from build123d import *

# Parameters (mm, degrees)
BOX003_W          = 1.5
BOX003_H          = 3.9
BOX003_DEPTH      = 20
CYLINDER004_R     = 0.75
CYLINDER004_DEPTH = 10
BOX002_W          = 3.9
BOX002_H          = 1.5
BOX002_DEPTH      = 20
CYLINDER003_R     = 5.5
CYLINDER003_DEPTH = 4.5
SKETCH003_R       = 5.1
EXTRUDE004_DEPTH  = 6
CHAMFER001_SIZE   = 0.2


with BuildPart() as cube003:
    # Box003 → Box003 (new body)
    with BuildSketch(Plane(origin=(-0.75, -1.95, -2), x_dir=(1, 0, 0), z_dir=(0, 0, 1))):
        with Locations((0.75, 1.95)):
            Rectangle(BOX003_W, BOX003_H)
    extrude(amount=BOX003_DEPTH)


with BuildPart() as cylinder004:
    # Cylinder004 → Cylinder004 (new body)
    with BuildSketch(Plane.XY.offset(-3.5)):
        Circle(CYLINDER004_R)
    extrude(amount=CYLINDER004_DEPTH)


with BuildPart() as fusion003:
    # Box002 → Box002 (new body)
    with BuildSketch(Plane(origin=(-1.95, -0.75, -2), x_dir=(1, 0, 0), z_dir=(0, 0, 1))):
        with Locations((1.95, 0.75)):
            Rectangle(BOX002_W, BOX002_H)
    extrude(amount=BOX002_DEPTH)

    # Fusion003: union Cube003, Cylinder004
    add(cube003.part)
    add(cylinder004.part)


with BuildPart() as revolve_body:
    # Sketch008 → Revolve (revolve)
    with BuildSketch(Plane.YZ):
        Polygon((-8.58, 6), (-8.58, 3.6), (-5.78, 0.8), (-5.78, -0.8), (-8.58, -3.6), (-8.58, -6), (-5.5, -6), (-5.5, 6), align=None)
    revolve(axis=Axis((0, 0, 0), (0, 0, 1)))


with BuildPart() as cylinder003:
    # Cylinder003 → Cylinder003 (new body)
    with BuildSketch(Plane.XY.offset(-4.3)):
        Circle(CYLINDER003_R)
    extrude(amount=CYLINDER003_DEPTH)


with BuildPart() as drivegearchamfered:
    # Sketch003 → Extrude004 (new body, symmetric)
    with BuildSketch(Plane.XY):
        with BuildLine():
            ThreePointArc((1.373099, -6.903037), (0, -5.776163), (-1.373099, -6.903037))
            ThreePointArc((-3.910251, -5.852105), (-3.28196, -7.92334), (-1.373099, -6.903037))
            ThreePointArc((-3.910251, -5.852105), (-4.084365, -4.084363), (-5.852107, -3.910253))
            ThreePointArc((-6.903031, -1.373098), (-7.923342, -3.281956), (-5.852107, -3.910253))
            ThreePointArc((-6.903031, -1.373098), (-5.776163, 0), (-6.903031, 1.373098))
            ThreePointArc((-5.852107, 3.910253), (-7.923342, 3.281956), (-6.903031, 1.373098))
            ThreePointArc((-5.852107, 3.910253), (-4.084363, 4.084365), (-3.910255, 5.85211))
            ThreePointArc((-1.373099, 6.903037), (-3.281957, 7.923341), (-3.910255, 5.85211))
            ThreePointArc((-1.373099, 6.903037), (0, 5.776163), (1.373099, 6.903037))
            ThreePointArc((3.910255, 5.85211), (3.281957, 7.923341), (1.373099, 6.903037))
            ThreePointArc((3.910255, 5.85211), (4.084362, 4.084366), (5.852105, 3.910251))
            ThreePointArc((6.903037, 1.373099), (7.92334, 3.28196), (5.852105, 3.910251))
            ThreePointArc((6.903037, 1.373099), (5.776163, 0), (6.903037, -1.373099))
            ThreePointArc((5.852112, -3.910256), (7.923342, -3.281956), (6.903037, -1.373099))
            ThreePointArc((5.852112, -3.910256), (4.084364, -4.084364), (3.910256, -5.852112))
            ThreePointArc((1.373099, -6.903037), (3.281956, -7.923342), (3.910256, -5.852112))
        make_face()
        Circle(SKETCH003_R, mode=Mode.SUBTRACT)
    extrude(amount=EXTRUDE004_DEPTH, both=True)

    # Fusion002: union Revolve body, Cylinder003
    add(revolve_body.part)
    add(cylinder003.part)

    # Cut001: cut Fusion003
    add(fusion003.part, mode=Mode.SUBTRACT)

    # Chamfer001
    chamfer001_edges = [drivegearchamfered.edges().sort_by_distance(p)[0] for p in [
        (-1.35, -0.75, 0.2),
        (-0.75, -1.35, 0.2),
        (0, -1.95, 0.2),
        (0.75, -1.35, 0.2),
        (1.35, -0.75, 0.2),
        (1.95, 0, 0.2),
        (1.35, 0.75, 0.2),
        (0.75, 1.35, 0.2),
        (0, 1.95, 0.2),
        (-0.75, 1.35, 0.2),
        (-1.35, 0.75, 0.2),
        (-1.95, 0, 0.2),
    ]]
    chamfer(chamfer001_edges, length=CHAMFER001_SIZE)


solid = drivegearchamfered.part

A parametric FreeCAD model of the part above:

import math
import FreeCAD as App
import Part
import Sketcher
from FreeCAD import Vector


def edges_at(feature, points):
    """Names of the edges that pass closest to the given points."""
    edges = feature.Shape.Edges
    near = lambda p: min(range(len(edges)), key=lambda i: edges[i].distToShape(Part.Vertex(*p))[0])
    return sorted({f"Edge{near(p) + 1}" for p in points})

doc = App.newDocument("Part")
body = doc.addObject("PartDesign::Body", "Body")

# Sketch on XY plane
sketch1 = doc.addObject("Sketcher::SketchObject", "Sketch")
body.addObject(sketch1)
sketch1.AttachmentSupport = (doc.XY_Plane, [""])
sketch1.MapMode = "FlatFace"
sketch1.AttachmentOffset = App.Placement(Vector(0, 0, -2), App.Rotation())
sketch1.addGeometry([
    Part.LineSegment(Vector(-0.8, 1.9, 0), Vector(-0.8, -1.9, 0)),
    Part.LineSegment(Vector(-0.8, -1.9, 0), Vector(0.8, -1.9, 0)),
    Part.LineSegment(Vector(0.8, -1.9, 0), Vector(0.8, 1.9, 0)),
    Part.LineSegment(Vector(0.8, 1.9, 0), Vector(-0.8, 1.9, 0)),
], False)
sketch1.addConstraint([
    Sketcher.Constraint("Coincident", 0, 2, 1, 1),
    Sketcher.Constraint("Coincident", 1, 2, 2, 1),
    Sketcher.Constraint("Coincident", 2, 2, 3, 1),
    Sketcher.Constraint("Coincident", 3, 2, 0, 1),
    Sketcher.Constraint("Vertical", 0),
    Sketcher.Constraint("Horizontal", 1),
    Sketcher.Constraint("Vertical", 2),
    Sketcher.Constraint("Horizontal", 3),
    Sketcher.Constraint("Symmetric", 0, 2, 2, 2, -1, 1),
    Sketcher.Constraint("DistanceX", 1, 1, 1, 2, 1.5),
    Sketcher.Constraint("DistanceY", 0, 2, 0, 1, 3.9),
])
pad1 = doc.addObject("PartDesign::Pad", "Pad")
body.addObject(pad1)
pad1.Profile = sketch1
pad1.Length = 20
body2 = doc.addObject("PartDesign::Body", "Body001")

# Sketch on XY plane
sketch2 = doc.addObject("Sketcher::SketchObject", "Sketch001")
body2.addObject(sketch2)
sketch2.AttachmentSupport = (doc.getObject("XY_Plane001"), [""])
sketch2.MapMode = "FlatFace"
sketch2.AttachmentOffset = App.Placement(Vector(0, 0, -3.5), App.Rotation())
sketch2.addGeometry(Part.Circle(Vector(0, 0, 0), Vector(0, 0, 1), 0.8), False)
sketch2.addConstraint([
    Sketcher.Constraint("Coincident", 0, 3, -1, 1),
    Sketcher.Constraint("Diameter", 0, 1.5),
])
pad2 = doc.addObject("PartDesign::Pad", "Pad001")
body2.addObject(pad2)
pad2.Profile = sketch2
pad2.Length = 10
body3 = doc.addObject("PartDesign::Body", "Body002")

# Sketch on XY plane
sketch3 = doc.addObject("Sketcher::SketchObject", "Sketch002")
body3.addObject(sketch3)
sketch3.AttachmentSupport = (doc.getObject("XY_Plane002"), [""])
sketch3.MapMode = "FlatFace"
sketch3.AttachmentOffset = App.Placement(Vector(0, 0, -2), App.Rotation())
sketch3.addGeometry([
    Part.LineSegment(Vector(-1.9, 0.8, 0), Vector(-1.9, -0.8, 0)),
    Part.LineSegment(Vector(-1.9, -0.8, 0), Vector(1.9, -0.8, 0)),
    Part.LineSegment(Vector(1.9, -0.8, 0), Vector(1.9, 0.8, 0)),
    Part.LineSegment(Vector(1.9, 0.8, 0), Vector(-1.9, 0.8, 0)),
], False)
sketch3.addConstraint([
    Sketcher.Constraint("Coincident", 0, 2, 1, 1),
    Sketcher.Constraint("Coincident", 1, 2, 2, 1),
    Sketcher.Constraint("Coincident", 2, 2, 3, 1),
    Sketcher.Constraint("Coincident", 3, 2, 0, 1),
    Sketcher.Constraint("Vertical", 0),
    Sketcher.Constraint("Horizontal", 1),
    Sketcher.Constraint("Vertical", 2),
    Sketcher.Constraint("Horizontal", 3),
    Sketcher.Constraint("Symmetric", 0, 2, 2, 2, -1, 1),
    Sketcher.Constraint("DistanceX", 1, 1, 1, 2, 3.9),
    Sketcher.Constraint("DistanceY", 0, 2, 0, 1, 1.5),
])
pad3 = doc.addObject("PartDesign::Pad", "Pad002")
body3.addObject(pad3)
pad3.Profile = sketch3
pad3.Length = 20
doc.recompute()

boolean = doc.addObject("PartDesign::Boolean", "Boolean")
body3.addObject(boolean)
boolean.Type = "Fuse"
boolean.addObjects([body])
doc.recompute()

boolean2 = doc.addObject("PartDesign::Boolean", "Boolean001")
body3.addObject(boolean2)
boolean2.Type = "Fuse"
boolean2.addObjects([body2])
body4 = doc.addObject("PartDesign::Body", "Body003")

# Sketch on YZ plane
sketch4 = doc.addObject("Sketcher::SketchObject", "Sketch003")
body4.addObject(sketch4)
sketch4.AttachmentSupport = (doc.getObject("YZ_Plane003"), [""])
sketch4.MapMode = "FlatFace"
sketch4.addGeometry([
    Part.LineSegment(Vector(-8.6, 6, 0), Vector(-8.6, 3.6, 0)),  # 0
    Part.LineSegment(Vector(-8.6, 3.6, 0), Vector(-5.8, 0.8, 0)),  # 1
    Part.LineSegment(Vector(-5.8, 0.8, 0), Vector(-5.8, -0.8, 0)),  # 2
    Part.LineSegment(Vector(-5.8, -0.8, 0), Vector(-8.6, -3.6, 0)),  # 3
    Part.LineSegment(Vector(-8.6, -3.6, 0), Vector(-8.6, -6, 0)),  # 4
    Part.LineSegment(Vector(-8.6, -6, 0), Vector(-5.5, -6, 0)),  # 5
    Part.LineSegment(Vector(-5.5, -6, 0), Vector(-5.5, 6, 0)),  # 6
    Part.LineSegment(Vector(-5.5, 6, 0), Vector(-8.6, 6, 0)),  # 7
], False)
sketch4.addConstraint([
    Sketcher.Constraint("Coincident", 0, 2, 1, 1),
    Sketcher.Constraint("Coincident", 1, 2, 2, 1),
    Sketcher.Constraint("Coincident", 2, 2, 3, 1),
    Sketcher.Constraint("Coincident", 3, 2, 4, 1),
    Sketcher.Constraint("Coincident", 4, 2, 5, 1),
    Sketcher.Constraint("Coincident", 5, 2, 6, 1),
    Sketcher.Constraint("Coincident", 6, 2, 7, 1),
    Sketcher.Constraint("Coincident", 7, 2, 0, 1),
    Sketcher.Constraint("Vertical", 0),
    Sketcher.Constraint("Vertical", 2),
    Sketcher.Constraint("Vertical", 4),
    Sketcher.Constraint("Horizontal", 5),
    Sketcher.Constraint("Vertical", 6),
    Sketcher.Constraint("Horizontal", 7),
    Sketcher.Constraint("Symmetric", 0, 2, 3, 2, -1),
    Sketcher.Constraint("Perpendicular", 1, 3),
    Sketcher.Constraint("Equal", 0, 4),
    Sketcher.Constraint("Equal", 1, 3),
    Sketcher.Constraint("DistanceY", 6, 1, 6, 2, 12.0),
    Sketcher.Constraint("DistanceY", 0, 2, 0, 1, 2.4),
    Sketcher.Constraint("DistanceY", 2, 2, 2, 1, 1.6),
    Sketcher.Constraint("DistanceX", 5, 1, 5, 2, 3.08),
    Sketcher.Constraint("DistanceX", 5, 2, -1, 1, 5.5),
])
revolution = doc.addObject("PartDesign::Revolution", "Revolution")
body4.addObject(revolution)
revolution.Profile = sketch4
revolution.ReferenceAxis = (sketch4, ["V_Axis"])
revolution.Angle = 360
body5 = doc.addObject("PartDesign::Body", "Body004")

# Sketch on XY plane
sketch5 = doc.addObject("Sketcher::SketchObject", "Sketch004")
body5.addObject(sketch5)
sketch5.AttachmentSupport = (doc.getObject("XY_Plane004"), [""])
sketch5.MapMode = "FlatFace"
sketch5.AttachmentOffset = App.Placement(Vector(0, 0, -4.3), App.Rotation())
sketch5.addGeometry(Part.Circle(Vector(0, 0, 0), Vector(0, 0, 1), 6), False)
sketch5.addConstraint([
    Sketcher.Constraint("Coincident", 0, 3, -1, 1),
    Sketcher.Constraint("Diameter", 0, 11.0),
])
pad4 = doc.addObject("PartDesign::Pad", "Pad003")
body5.addObject(pad4)
pad4.Profile = sketch5
pad4.Length = 4.5
body6 = doc.addObject("PartDesign::Body", "Body005")

# Sketch on XY plane
sketch6 = doc.addObject("Sketcher::SketchObject", "Sketch005")
body6.addObject(sketch6)
sketch6.AttachmentSupport = (doc.getObject("XY_Plane005"), [""])
sketch6.MapMode = "FlatFace"
sketch6.addGeometry([
    Part.ArcOfCircle(Part.Circle(Vector(0, -7.2, 0), Vector(0, 0, 1), 1.4), math.radians(11), math.radians(169)),  # 0
    Part.ArcOfCircle(Part.Circle(Vector(2.7, -6.6, 0), Vector(0, 0, 1), 1.4), math.radians(-169), math.radians(34)),  # 1
    Part.ArcOfCircle(Part.Circle(Vector(5.1, -5.1, 0), Vector(0, 0, 1), 1.4), math.radians(56), math.radians(214)),  # 2
    Part.ArcOfCircle(Part.Circle(Vector(6.6, -2.7, 0), Vector(0, 0, 1), 1.4), math.radians(-124), math.radians(79)),  # 3
    Part.ArcOfCircle(Part.Circle(Vector(7.2, 0, 0), Vector(0, 0, 1), 1.4), math.radians(101), math.radians(259)),  # 4
    Part.ArcOfCircle(Part.Circle(Vector(6.6, 2.7, 0), Vector(0, 0, 1), 1.4), math.radians(-79), math.radians(124)),  # 5
    Part.ArcOfCircle(Part.Circle(Vector(5.1, 5.1, 0), Vector(0, 0, 1), 1.4), math.radians(146), math.radians(304)),  # 6
    Part.ArcOfCircle(Part.Circle(Vector(2.7, 6.6, 0), Vector(0, 0, 1), 1.4), math.radians(-34), math.radians(169)),  # 7
    Part.ArcOfCircle(Part.Circle(Vector(0, 7.2, 0), Vector(0, 0, 1), 1.4), math.radians(-169), math.radians(-11)),  # 8
    Part.ArcOfCircle(Part.Circle(Vector(-2.7, 6.6, 0), Vector(0, 0, 1), 1.4), math.radians(11), math.radians(214)),  # 9
    Part.ArcOfCircle(Part.Circle(Vector(-5.1, 5.1, 0), Vector(0, 0, 1), 1.4), math.radians(-124), math.radians(34)),  # 10
    Part.ArcOfCircle(Part.Circle(Vector(-6.6, 2.7, 0), Vector(0, 0, 1), 1.4), math.radians(56), math.radians(259)),  # 11
    Part.ArcOfCircle(Part.Circle(Vector(-7.2, 0, 0), Vector(0, 0, 1), 1.4), math.radians(-79), math.radians(79)),  # 12
    Part.ArcOfCircle(Part.Circle(Vector(-6.6, -2.7, 0), Vector(0, 0, 1), 1.4), math.radians(101), math.radians(304)),  # 13
    Part.ArcOfCircle(Part.Circle(Vector(-5.1, -5.1, 0), Vector(0, 0, 1), 1.4), math.radians(-34), math.radians(124)),  # 14
    Part.ArcOfCircle(Part.Circle(Vector(-2.7, -6.6, 0), Vector(0, 0, 1), 1.4), math.radians(146), math.radians(349)),  # 15
    Part.Circle(Vector(0, 0, 0), Vector(0, 0, 1), 5.1),  # 16
], False)
sketch6.addConstraint([
    Sketcher.Constraint("Tangent", 0, 1, 1, 1),
    Sketcher.Constraint("Tangent", 1, 2, 2, 2),
    Sketcher.Constraint("Tangent", 2, 1, 3, 1),
    Sketcher.Constraint("Tangent", 3, 2, 4, 2),
    Sketcher.Constraint("Tangent", 4, 1, 5, 1),
    Sketcher.Constraint("Coincident", 5, 2, 6, 2),
    Sketcher.Constraint("Coincident", 6, 1, 7, 1),
    Sketcher.Constraint("Tangent", 7, 2, 8, 2),
    Sketcher.Constraint("Tangent", 8, 1, 9, 1),
    Sketcher.Constraint("Coincident", 9, 2, 10, 2),
    Sketcher.Constraint("Coincident", 10, 1, 11, 1),
    Sketcher.Constraint("Coincident", 11, 2, 12, 2),
    Sketcher.Constraint("Coincident", 12, 1, 13, 1),
    Sketcher.Constraint("Coincident", 13, 2, 14, 2),
    Sketcher.Constraint("Coincident", 14, 1, 15, 1),
    Sketcher.Constraint("Tangent", 15, 2, 0, 2),
    Sketcher.Constraint("Coincident", 16, 3, -1, 1),
    Sketcher.Constraint("Equal", 0, 1),
    Sketcher.Constraint("Equal", 1, 2),
    Sketcher.Constraint("Equal", 2, 3),
    Sketcher.Constraint("Equal", 3, 4),
    Sketcher.Constraint("Equal", 4, 5),
    Sketcher.Constraint("Equal", 5, 6),
    Sketcher.Constraint("Equal", 6, 7),
    Sketcher.Constraint("Equal", 7, 8),
    Sketcher.Constraint("Equal", 8, 9),
    Sketcher.Constraint("Equal", 9, 10),
    Sketcher.Constraint("Equal", 10, 11),
    Sketcher.Constraint("Equal", 11, 12),
    Sketcher.Constraint("Equal", 12, 13),
    Sketcher.Constraint("Equal", 13, 14),
    Sketcher.Constraint("Equal", 14, 15),
    Sketcher.Constraint("Symmetric", 0, 3, 8, 3, -1, 1),
    Sketcher.Constraint("Symmetric", 2, 3, 10, 3, -1, 1),
    Sketcher.Constraint("Symmetric", 4, 3, 12, 3, -1, 1),
    Sketcher.Constraint("Symmetric", 6, 3, 14, 3, -1, 1),
    Sketcher.Constraint("Symmetric", 7, 3, 9, 3, -2),
    Sketcher.Constraint("Symmetric", 5, 3, 11, 3, -2),
    Sketcher.Constraint("Horizontal", 6, 1, 9, 2),
    Sketcher.Constraint("Horizontal", 4, 1, 11, 2),
    Sketcher.Constraint("Horizontal", 3, 2, 12, 1),
    Sketcher.Constraint("Vertical", 1, 2, 6, 1),
    Sketcher.Constraint("Vertical", 10, 1, 13, 2),
    Sketcher.Constraint("Diameter", 16, 10.2),
    Sketcher.Constraint("Radius", 0, 1.399999),
    Sketcher.Constraint("DistanceX", -1, 1, 1, 3, 2.746199),
    Sketcher.Constraint("DistanceY", 3, 3, -1, 1, 2.746199),
    Sketcher.Constraint("DistanceY", 1, 2, 2, 3, 0.777798),
    Sketcher.Constraint("DistanceX", 2, 3, 2, 1, 0.777798),
    Sketcher.Constraint("DistanceY", -1, 1, 5, 2, 3.910251),
    Sketcher.Constraint("DistanceX", 14, 1, -1, 1, 3.910251),
    Sketcher.Constraint("DistanceY", 10, 1, 10, 3, 1.16406),
])
pad5 = doc.addObject("PartDesign::Pad", "Pad004")
body6.addObject(pad5)
pad5.Profile = sketch6
pad5.Length = 12
pad5.Midplane = True
doc.recompute()

boolean3 = doc.addObject("PartDesign::Boolean", "Boolean002")
body6.addObject(boolean3)
boolean3.Type = "Fuse"
boolean3.addObjects([body4])
doc.recompute()

boolean4 = doc.addObject("PartDesign::Boolean", "Boolean003")
body6.addObject(boolean4)
boolean4.Type = "Fuse"
boolean4.addObjects([body5])
doc.recompute()

boolean5 = doc.addObject("PartDesign::Boolean", "Boolean004")
body6.addObject(boolean5)
boolean5.Type = "Cut"
boolean5.addObjects([body3])
doc.recompute()

chamfer = doc.addObject("PartDesign::Chamfer", "Chamfer")
body6.addObject(chamfer)
chamfer.Base = (boolean5, edges_at(boolean5, [
    (-1.35, -0.75, 0.2),
    (-0.75, -1.35, 0.2),
    (0, -1.95, 0.2),
    (0.75, -1.35, 0.2),
    (1.35, -0.75, 0.2),
    (1.95, 0, 0.2),
    (1.35, 0.75, 0.2),
    (0.75, 1.35, 0.2),
    (0, 1.95, 0.2),
    (-0.75, 1.35, 0.2),
    (-1.35, 0.75, 0.2),
    (-1.95, 0, 0.2),
]))
chamfer.Size = 0.2

doc.recompute()
